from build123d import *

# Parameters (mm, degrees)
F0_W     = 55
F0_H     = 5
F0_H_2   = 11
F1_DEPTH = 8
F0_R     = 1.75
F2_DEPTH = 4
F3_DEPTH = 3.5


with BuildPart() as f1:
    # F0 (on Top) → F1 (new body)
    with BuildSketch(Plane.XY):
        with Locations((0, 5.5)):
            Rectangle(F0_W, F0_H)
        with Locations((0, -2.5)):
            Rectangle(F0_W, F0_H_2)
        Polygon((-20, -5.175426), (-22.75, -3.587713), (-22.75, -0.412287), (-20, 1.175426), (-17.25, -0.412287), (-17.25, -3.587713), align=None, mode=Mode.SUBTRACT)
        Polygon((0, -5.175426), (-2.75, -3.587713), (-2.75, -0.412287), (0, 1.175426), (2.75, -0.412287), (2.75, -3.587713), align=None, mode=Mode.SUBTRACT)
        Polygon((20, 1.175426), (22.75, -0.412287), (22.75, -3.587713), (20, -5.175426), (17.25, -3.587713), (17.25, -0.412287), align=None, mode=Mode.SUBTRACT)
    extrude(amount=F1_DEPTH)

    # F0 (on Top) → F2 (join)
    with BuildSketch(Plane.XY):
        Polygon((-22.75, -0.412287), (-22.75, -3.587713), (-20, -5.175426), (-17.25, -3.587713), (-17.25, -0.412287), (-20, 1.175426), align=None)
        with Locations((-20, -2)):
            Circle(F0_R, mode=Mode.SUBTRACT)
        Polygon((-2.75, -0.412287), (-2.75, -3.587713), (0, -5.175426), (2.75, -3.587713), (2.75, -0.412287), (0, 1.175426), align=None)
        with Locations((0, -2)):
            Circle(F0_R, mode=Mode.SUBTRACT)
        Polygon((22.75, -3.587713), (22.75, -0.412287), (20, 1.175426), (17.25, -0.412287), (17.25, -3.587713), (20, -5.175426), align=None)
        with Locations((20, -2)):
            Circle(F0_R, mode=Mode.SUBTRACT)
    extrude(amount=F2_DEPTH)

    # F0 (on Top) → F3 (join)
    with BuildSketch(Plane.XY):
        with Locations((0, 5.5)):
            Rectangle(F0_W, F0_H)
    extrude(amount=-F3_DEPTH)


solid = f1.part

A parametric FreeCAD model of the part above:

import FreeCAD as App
import Part
import Sketcher
Q = App.Units.Quantity

doc = App.newDocument("Part")
body = doc.addObject("PartDesign::Body", "Body")

# Sketch on XY plane
sketch1 = body.newObject("Sketcher::SketchObject", "Sketch")
sketch1.AttachmentSupport = (doc.getObject("XY_Plane"), [""])
sketch1.MapMode = "FlatFace"
sketch1.addGeometry([
    Part.LineSegment(App.Vector(-27.5, 8, 0), App.Vector(-27.5, -8, 0)),  # 0
    Part.LineSegment(App.Vector(-27.5, -8, 0), App.Vector(27.5, -8, 0)),  # 1
    Part.LineSegment(App.Vector(27.5, -8, 0), App.Vector(27.5, 8, 0)),  # 2
    Part.LineSegment(App.Vector(27.5, 8, 0), App.Vector(-27.5, 8, 0)),  # 3
    Part.LineSegment(App.Vector(-17.25, -3.587713, 0), App.Vector(-20, -5.175426, 0)),  # 4
    Part.LineSegment(App.Vector(-20, -5.175426, 0), App.Vector(-22.75, -3.587713, 0)),  # 5
    Part.LineSegment(App.Vector(-22.75, -3.587713, 0), App.Vector(-22.75, -0.412287, 0)),  # 6
    Part.LineSegment(App.Vector(-22.75, -0.412287, 0), App.Vector(-20, 1.175426, 0)),  # 7
    Part.LineSegment(App.Vector(-20, 1.175426, 0), App.Vector(-17.25, -0.412287, 0)),  # 8
    Part.LineSegment(App.Vector(-17.25, -0.412287, 0), App.Vector(-17.25, -3.587713, 0)),  # 9
    Part.LineSegment(App.Vector(2.75, -3.587713, 0), App.Vector(0, -5.175426, 0)),  # 10
    Part.LineSegment(App.Vector(0, -5.175426, 0), App.Vector(-2.75, -3.587713, 0)),  # 11
    Part.LineSegment(App.Vector(-2.75, -3.587713, 0), App.Vector(-2.75, -0.412287, 0)),  # 12
    Part.LineSegment(App.Vector(-2.75, -0.412287, 0), App.Vector(0, 1.175426, 0)),  # 13
    Part.LineSegment(App.Vector(0, 1.175426, 0), App.Vector(2.75, -0.412287, 0)),  # 14
    Part.LineSegment(App.Vector(2.75, -0.412287, 0), App.Vector(2.75, -3.587713, 0)),  # 15
    Part.LineSegment(App.Vector(17.25, -0.412287, 0), App.Vector(20, 1.175426, 0)),  # 16
    Part.LineSegment(App.Vector(20, 1.175426, 0), App.Vector(22.75, -0.412287, 0)),  # 17
    Part.LineSegment(App.Vector(22.75, -0.412287, 0), App.Vector(22.75, -3.587713, 0)),  # 18
    Part.LineSegment(App.Vector(22.75, -3.587713, 0), App.Vector(20, -5.175426, 0)),  # 19
    Part.LineSegment(App.Vector(20, -5.175426, 0), App.Vector(17.25, -3.587713, 0)),  # 20
    Part.LineSegment(App.Vector(17.25, -3.587713, 0), App.Vector(17.25, -0.412287, 0)),  # 21
], False)
sketch1.addConstraint([
    Sketcher.Constraint("Coincident", 0, 2, 1, 1),
    Sketcher.Constraint("Coincident", 1, 2, 2, 1),
    Sketcher.Constraint("Coincident", 2, 2, 3, 1),
    Sketcher.Constraint("Coincident", 3, 2, 0, 1),
    Sketcher.Constraint("Coincident", 4, 2, 5, 1),
    Sketcher.Constraint("Coincident", 5, 2, 6, 1),
    Sketcher.Constraint("Coincident", 6, 2, 7, 1),
    Sketcher.Constraint("Coincident", 7, 2, 8, 1),
    Sketcher.Constraint("Coincident", 8, 2, 9, 1),
    Sketcher.Constraint("Coincident", 9, 2, 4, 1),
    Sketcher.Constraint("Coincident", 10, 2, 11, 1),
    Sketcher.Constraint("Coincident", 11, 2, 12, 1),
    Sketcher.Constraint("Coincident", 12, 2, 13, 1),
    Sketcher.Constraint("Coincident", 13, 2, 14, 1),
    Sketcher.Constraint("Coincident", 14, 2, 15, 1),
    Sketcher.Constraint("Coincident", 15, 2, 10, 1),
    Sketcher.Constraint("Coincident", 16, 2, 17, 1),
    Sketcher.Constraint("Coincident", 17, 2, 18, 1),
    Sketcher.Constraint("Coincident", 18, 2, 19, 1),
    Sketcher.Constraint("Coincident", 19, 2, 20, 1),
    Sketcher.Constraint("Coincident", 20, 2, 21, 1),
    Sketcher.Constraint("Coincident", 21, 2, 16, 1),
    Sketcher.Constraint("Vertical", 0),
    Sketcher.Constraint("Horizontal", 1),
    Sketcher.Constraint("Vertical", 2),
    Sketcher.Constraint("Horizontal", 3),
    Sketcher.Constraint("Vertical", 6),
    Sketcher.Constraint("Vertical", 9),
    Sketcher.Constraint("Vertical", 12),
    Sketcher.Constraint("Vertical", 15),
    Sketcher.Constraint("Vertical", 18),
    Sketcher.Constraint("Vertical", 21),
    Sketcher.Constraint("Symmetric", 0, 2, 2, 2, -1, 1),
    Sketcher.Constraint("Symmetric", 12, 2, 14, 2, -2),
    Sketcher.Constraint("Symmetric", 7, 2, 16, 2, -2),
    Sketcher.Constraint("Symmetric", 6, 2, 17, 2, -2),
    Sketcher.Constraint("Symmetric", 4, 2, 19, 2, -2),
    Sketcher.Constraint("Symmetric", 9, 2, 20, 2, -2),
    Sketcher.Constraint("PointOnObject", 10, 2, -2),
    Sketcher.Constraint("PointOnObject", 13, 2, -2),
    Sketcher.Constraint("Parallel", 4, 7),
    Sketcher.Constraint("Parallel", 5, 8),
    Sketcher.Constraint("Parallel", 7, 10),
    Sketcher.Constraint("Parallel", 8, 11),
    Sketcher.Constraint("Parallel", 10, 13),
    Sketcher.Constraint("Parallel", 11, 14),
    Sketcher.Constraint("Parallel", 13, 16),
    Sketcher.Constraint("Parallel", 16, 19),
    Sketcher.Constraint("Horizontal", 6, 2, 8, 2),
    Sketcher.Constraint("Horizontal", 5, 2, 9, 2),
    Sketcher.Constraint("Horizontal", 4, 2, 10, 2),
    Sketcher.Constraint("Horizontal", 9, 2, 11, 2),
    Sketcher.Constraint("Horizontal", 8, 2, 12, 2),
    Sketcher.Constraint("DistanceX", 1, 1, 1, 2, Q("55 mm")),
    Sketcher.Constraint("DistanceY", 0, 2, 0, 1, Q("16 mm")),
    Sketcher.Constraint("Angle", 4, Q("-150.000004 deg")),
    Sketcher.Constraint("DistanceX", 4, 2, -1, 1, Q("20 mm")),
    Sketcher.Constraint("DistanceX", 6, 2, 8, 2, Q("5.5 mm")),
    Sketcher.Constraint("DistanceY", 6, 1, 6, 2, Q("3.175426 mm")),
    Sketcher.Constraint("DistanceY", 4, 2, -1, 1, Q("5.175426 mm")),
])
pad1 = body.newObject("PartDesign::Pad", "Pad")
pad1.Profile = sketch1
pad1.Length = 8

# Sketch on XY plane
sketch2 = body.newObject("Sketcher::SketchObject", "Sketch001")
sketch2.AttachmentSupport = (doc.getObject("XY_Plane"), [""])
sketch2.MapMode = "FlatFace"
sketch2.addGeometry([
    Part.LineSegment(App.Vector(-22.75, -0.412287, 0), App.Vector(-22.75, -3.587713, 0)),  # 0
    Part.LineSegment(App.Vector(-22.75, -3.587713, 0), App.Vector(-20, -5.175426, 0)),  # 1
    Part.LineSegment(App.Vector(-20, -5.175426, 0), App.Vector(-17.25, -3.587713, 0)),  # 2
    Part.LineSegment(App.Vector(-17.25, -3.587713, 0), App.Vector(-17.25, -0.412287, 0)),  # 3
    Part.LineSegment(App.Vector(-17.25, -0.412287, 0), App.Vector(-20, 1.175426, 0)),  # 4
    Part.LineSegment(App.Vector(-20, 1.175426, 0), App.Vector(-22.75, -0.412287, 0)),  # 5
    Part.Circle(App.Vector(-20, -2, 0), App.Vector(0, 0, 1), 1.75),  # 6
    Part.LineSegment(App.Vector(-2.75, -0.412287, 0), App.Vector(-2.75, -3.587713, 0)),  # 7
    Part.LineSegment(App.Vector(-2.75, -3.587713, 0), App.Vector(0, -5.175426, 0)),  # 8
    Part.LineSegment(App.Vector(0, -5.175426, 0), App.Vector(2.75, -3.587713, 0)),  # 9
    Part.LineSegment(App.Vector(2.75, -3.587713, 0), App.Vector(2.75, -0.412287, 0)),  # 10
    Part.LineSegment(App.Vector(2.75, -0.412287, 0), App.Vector(0, 1.175426, 0)),  # 11
    Part.LineSegment(App.Vector(0, 1.175426, 0), App.Vector(-2.75, -0.412287, 0)),  # 12
    Part.Circle(App.Vector(0, -2, 0), App.Vector(0, 0, 1), 1.75),  # 13
    Part.LineSegment(App.Vector(22.75, -3.587713, 0), App.Vector(22.75, -0.412287, 0)),  # 14
    Part.LineSegment(App.Vector(22.75, -0.412287, 0), App.Vector(20, 1.175426, 0)),  # 15
    Part.LineSegment(App.Vector(20, 1.175426, 0), App.Vector(17.25, -0.412287, 0)),  # 16
    Part.LineSegment(App.Vector(17.25, -0.412287, 0), App.Vector(17.25, -3.587713, 0)),  # 17
    Part.LineSegment(App.Vector(17.25, -3.587713, 0), App.Vector(20, -5.175426, 0)),  # 18
    Part.LineSegment(App.Vector(20, -5.175426, 0), App.Vector(22.75, -3.587713, 0)),  # 19
    Part.Circle(App.Vector(20, -2, 0), App.Vector(0, 0, 1), 1.75),  # 20
], False)
sketch2.addConstraint([
    Sketcher.Constraint("Coincident", 0, 2, 1, 1),
    Sketcher.Constraint("Coincident", 1, 2, 2, 1),
    Sketcher.Constraint("Coincident", 2, 2, 3, 1),
    Sketcher.Constraint("Coincident", 3, 2, 4, 1),
    Sketcher.Constraint("Coincident", 4, 2, 5, 1),
    Sketcher.Constraint("Coincident", 5, 2, 0, 1),
    Sketcher.Constraint("Coincident", 7, 2, 8, 1),
    Sketcher.Constraint("Coincident", 8, 2, 9, 1),
    Sketcher.Constraint("Coincident", 9, 2, 10, 1),
    Sketcher.Constraint("Coincident", 10, 2, 11, 1),
    Sketcher.Constraint("Coincident", 11, 2, 12, 1),
    Sketcher.Constraint("Coincident", 12, 2, 7, 1),
    Sketcher.Constraint("Coincident", 14, 2, 15, 1),
    Sketcher.Constraint("Coincident", 15, 2, 16, 1),
    Sketcher.Constraint("Coincident", 16, 2, 17, 1),
    Sketcher.Constraint("Coincident", 17, 2, 18, 1),
    Sketcher.Constraint("Coincident", 18, 2, 19, 1),
    Sketcher.Constraint("Coincident", 19, 2, 14, 1),
    Sketcher.Constraint("Vertical", 0),
    Sketcher.Constraint("Vertical", 3),
    Sketcher.Constraint("Vertical", 7),
    Sketcher.Constraint("Vertical", 10),
    Sketcher.Constraint("Vertical", 14),
    Sketcher.Constraint("Vertical", 17),
    Sketcher.Constraint("Equal", 6, 13),
    Sketcher.Constraint("Equal", 13, 20),
    Sketcher.Constraint("Symmetric", 6, 3, 20, 3, -2),
    Sketcher.Constraint("Symmetric", 7, 2, 9, 2, -2),
    Sketcher.Constraint("Symmetric", 5, 2, 14, 2, -2),
    Sketcher.Constraint("Symmetric", 4, 2, 15, 2, -2),
    Sketcher.Constraint("Symmetric", 3, 2, 16, 2, -2),
    Sketcher.Constraint("Symmetric", 1, 2, 18, 2, -2),
    Sketcher.Constraint("PointOnObject", 13, 3, -2),
    Sketcher.Constraint("PointOnObject", 8, 2, -2),
    Sketcher.Constraint("PointOnObject", 11, 2, -2),
    Sketcher.Constraint("Parallel", 1, 4),
    Sketcher.Constraint("Parallel", 2, 5),
    Sketcher.Constraint("Parallel", 4, 8),
    Sketcher.Constraint("Parallel", 5, 9),
    Sketcher.Constraint("Parallel", 8, 11),
    Sketcher.Constraint("Parallel", 9, 12),
    Sketcher.Constraint("Parallel", 15, 18),
    Sketcher.Constraint("Parallel", 16, 19),
    Sketcher.Constraint("Horizontal", 6, 3, 13, 3),
    Sketcher.Constraint("Horizontal", 0, 2, 2, 2),
    Sketcher.Constraint("Horizontal", 3, 2, 5, 2),
    Sketcher.Constraint("Horizontal", 2, 2, 7, 2),
    Sketcher.Constraint("Horizontal", 1, 2, 8, 2),
    Sketcher.Constraint("Horizontal", 5, 2, 10, 2),
    Sketcher.Constraint("Vertical", 6, 3, 1, 2),
    Sketcher.Constraint("Diameter", 6, Q("3.5 mm")),
    Sketcher.Constraint("Angle", 1, Q("-29.999996 deg")),
    Sketcher.Constraint("DistanceX", 6, 3, -1, 1, Q("20 mm")),
    Sketcher.Constraint("DistanceY", 6, 3, -1, 1, Q("2 mm")),
    Sketcher.Constraint("DistanceX", 0, 2, 2, 2, Q("5.5 mm")),
    Sketcher.Constraint("DistanceY", 0, 2, 0, 1, Q("3.175426 mm")),
    Sketcher.Constraint("DistanceY", 0, 2, -1, 1, Q("3.587713 mm")),
])
pad2 = body.newObject("PartDesign::Pad", "Pad001")
pad2.Profile = sketch2
pad2.Length = 4

# Sketch on XY plane
sketch3 = body.newObject("Sketcher::SketchObject", "Sketch002")
sketch3.AttachmentSupport = (doc.getObject("XY_Plane"), [""])
sketch3.MapMode = "FlatFace"
sketch3.addGeometry([
    Part.LineSegment(App.Vector(-27.5, 8, 0), App.Vector(-27.5, 3, 0)),
    Part.LineSegment(App.Vector(-27.5, 3, 0), App.Vector(27.5, 3, 0)),
    Part.LineSegment(App.Vector(27.5, 3, 0), App.Vector(27.5, 8, 0)),
    Part.LineSegment(App.Vector(27.5, 8, 0), App.Vector(-27.5, 8, 0)),
], False)
sketch3.addConstraint([
    Sketcher.Constraint("Coincident", 0, 2, 1, 1),
    Sketcher.Constraint("Coincident", 1, 2, 2, 1),
    Sketcher.Constraint("Coincident", 2, 2, 3, 1),
    Sketcher.Constraint("Coincident", 3, 2, 0, 1),
    Sketcher.Constraint("Vertical", 0),
    Sketcher.Constraint("Horizontal", 1),
    Sketcher.Constraint("Vertical", 2),
    Sketcher.Constraint("Horizontal", 3),
    Sketcher.Constraint("DistanceX", 1, 1, 1, 2, Q("55 mm")),
    Sketcher.Constraint("DistanceY", 0, 2, 0, 1, Q("5 mm")),
    Sketcher.Constraint("DistanceY", -1, 1, 0, 2, Q("3 mm")),
    Sketcher.Constraint("DistanceX", 0, 2, -1, 1, Q("27.5 mm")),
])
pad3 = body.newObject("PartDesign::Pad", "Pad002")
pad3.Profile = sketch3
pad3.Length = 3.5
pad3.Reversed = True

doc.recompute()
